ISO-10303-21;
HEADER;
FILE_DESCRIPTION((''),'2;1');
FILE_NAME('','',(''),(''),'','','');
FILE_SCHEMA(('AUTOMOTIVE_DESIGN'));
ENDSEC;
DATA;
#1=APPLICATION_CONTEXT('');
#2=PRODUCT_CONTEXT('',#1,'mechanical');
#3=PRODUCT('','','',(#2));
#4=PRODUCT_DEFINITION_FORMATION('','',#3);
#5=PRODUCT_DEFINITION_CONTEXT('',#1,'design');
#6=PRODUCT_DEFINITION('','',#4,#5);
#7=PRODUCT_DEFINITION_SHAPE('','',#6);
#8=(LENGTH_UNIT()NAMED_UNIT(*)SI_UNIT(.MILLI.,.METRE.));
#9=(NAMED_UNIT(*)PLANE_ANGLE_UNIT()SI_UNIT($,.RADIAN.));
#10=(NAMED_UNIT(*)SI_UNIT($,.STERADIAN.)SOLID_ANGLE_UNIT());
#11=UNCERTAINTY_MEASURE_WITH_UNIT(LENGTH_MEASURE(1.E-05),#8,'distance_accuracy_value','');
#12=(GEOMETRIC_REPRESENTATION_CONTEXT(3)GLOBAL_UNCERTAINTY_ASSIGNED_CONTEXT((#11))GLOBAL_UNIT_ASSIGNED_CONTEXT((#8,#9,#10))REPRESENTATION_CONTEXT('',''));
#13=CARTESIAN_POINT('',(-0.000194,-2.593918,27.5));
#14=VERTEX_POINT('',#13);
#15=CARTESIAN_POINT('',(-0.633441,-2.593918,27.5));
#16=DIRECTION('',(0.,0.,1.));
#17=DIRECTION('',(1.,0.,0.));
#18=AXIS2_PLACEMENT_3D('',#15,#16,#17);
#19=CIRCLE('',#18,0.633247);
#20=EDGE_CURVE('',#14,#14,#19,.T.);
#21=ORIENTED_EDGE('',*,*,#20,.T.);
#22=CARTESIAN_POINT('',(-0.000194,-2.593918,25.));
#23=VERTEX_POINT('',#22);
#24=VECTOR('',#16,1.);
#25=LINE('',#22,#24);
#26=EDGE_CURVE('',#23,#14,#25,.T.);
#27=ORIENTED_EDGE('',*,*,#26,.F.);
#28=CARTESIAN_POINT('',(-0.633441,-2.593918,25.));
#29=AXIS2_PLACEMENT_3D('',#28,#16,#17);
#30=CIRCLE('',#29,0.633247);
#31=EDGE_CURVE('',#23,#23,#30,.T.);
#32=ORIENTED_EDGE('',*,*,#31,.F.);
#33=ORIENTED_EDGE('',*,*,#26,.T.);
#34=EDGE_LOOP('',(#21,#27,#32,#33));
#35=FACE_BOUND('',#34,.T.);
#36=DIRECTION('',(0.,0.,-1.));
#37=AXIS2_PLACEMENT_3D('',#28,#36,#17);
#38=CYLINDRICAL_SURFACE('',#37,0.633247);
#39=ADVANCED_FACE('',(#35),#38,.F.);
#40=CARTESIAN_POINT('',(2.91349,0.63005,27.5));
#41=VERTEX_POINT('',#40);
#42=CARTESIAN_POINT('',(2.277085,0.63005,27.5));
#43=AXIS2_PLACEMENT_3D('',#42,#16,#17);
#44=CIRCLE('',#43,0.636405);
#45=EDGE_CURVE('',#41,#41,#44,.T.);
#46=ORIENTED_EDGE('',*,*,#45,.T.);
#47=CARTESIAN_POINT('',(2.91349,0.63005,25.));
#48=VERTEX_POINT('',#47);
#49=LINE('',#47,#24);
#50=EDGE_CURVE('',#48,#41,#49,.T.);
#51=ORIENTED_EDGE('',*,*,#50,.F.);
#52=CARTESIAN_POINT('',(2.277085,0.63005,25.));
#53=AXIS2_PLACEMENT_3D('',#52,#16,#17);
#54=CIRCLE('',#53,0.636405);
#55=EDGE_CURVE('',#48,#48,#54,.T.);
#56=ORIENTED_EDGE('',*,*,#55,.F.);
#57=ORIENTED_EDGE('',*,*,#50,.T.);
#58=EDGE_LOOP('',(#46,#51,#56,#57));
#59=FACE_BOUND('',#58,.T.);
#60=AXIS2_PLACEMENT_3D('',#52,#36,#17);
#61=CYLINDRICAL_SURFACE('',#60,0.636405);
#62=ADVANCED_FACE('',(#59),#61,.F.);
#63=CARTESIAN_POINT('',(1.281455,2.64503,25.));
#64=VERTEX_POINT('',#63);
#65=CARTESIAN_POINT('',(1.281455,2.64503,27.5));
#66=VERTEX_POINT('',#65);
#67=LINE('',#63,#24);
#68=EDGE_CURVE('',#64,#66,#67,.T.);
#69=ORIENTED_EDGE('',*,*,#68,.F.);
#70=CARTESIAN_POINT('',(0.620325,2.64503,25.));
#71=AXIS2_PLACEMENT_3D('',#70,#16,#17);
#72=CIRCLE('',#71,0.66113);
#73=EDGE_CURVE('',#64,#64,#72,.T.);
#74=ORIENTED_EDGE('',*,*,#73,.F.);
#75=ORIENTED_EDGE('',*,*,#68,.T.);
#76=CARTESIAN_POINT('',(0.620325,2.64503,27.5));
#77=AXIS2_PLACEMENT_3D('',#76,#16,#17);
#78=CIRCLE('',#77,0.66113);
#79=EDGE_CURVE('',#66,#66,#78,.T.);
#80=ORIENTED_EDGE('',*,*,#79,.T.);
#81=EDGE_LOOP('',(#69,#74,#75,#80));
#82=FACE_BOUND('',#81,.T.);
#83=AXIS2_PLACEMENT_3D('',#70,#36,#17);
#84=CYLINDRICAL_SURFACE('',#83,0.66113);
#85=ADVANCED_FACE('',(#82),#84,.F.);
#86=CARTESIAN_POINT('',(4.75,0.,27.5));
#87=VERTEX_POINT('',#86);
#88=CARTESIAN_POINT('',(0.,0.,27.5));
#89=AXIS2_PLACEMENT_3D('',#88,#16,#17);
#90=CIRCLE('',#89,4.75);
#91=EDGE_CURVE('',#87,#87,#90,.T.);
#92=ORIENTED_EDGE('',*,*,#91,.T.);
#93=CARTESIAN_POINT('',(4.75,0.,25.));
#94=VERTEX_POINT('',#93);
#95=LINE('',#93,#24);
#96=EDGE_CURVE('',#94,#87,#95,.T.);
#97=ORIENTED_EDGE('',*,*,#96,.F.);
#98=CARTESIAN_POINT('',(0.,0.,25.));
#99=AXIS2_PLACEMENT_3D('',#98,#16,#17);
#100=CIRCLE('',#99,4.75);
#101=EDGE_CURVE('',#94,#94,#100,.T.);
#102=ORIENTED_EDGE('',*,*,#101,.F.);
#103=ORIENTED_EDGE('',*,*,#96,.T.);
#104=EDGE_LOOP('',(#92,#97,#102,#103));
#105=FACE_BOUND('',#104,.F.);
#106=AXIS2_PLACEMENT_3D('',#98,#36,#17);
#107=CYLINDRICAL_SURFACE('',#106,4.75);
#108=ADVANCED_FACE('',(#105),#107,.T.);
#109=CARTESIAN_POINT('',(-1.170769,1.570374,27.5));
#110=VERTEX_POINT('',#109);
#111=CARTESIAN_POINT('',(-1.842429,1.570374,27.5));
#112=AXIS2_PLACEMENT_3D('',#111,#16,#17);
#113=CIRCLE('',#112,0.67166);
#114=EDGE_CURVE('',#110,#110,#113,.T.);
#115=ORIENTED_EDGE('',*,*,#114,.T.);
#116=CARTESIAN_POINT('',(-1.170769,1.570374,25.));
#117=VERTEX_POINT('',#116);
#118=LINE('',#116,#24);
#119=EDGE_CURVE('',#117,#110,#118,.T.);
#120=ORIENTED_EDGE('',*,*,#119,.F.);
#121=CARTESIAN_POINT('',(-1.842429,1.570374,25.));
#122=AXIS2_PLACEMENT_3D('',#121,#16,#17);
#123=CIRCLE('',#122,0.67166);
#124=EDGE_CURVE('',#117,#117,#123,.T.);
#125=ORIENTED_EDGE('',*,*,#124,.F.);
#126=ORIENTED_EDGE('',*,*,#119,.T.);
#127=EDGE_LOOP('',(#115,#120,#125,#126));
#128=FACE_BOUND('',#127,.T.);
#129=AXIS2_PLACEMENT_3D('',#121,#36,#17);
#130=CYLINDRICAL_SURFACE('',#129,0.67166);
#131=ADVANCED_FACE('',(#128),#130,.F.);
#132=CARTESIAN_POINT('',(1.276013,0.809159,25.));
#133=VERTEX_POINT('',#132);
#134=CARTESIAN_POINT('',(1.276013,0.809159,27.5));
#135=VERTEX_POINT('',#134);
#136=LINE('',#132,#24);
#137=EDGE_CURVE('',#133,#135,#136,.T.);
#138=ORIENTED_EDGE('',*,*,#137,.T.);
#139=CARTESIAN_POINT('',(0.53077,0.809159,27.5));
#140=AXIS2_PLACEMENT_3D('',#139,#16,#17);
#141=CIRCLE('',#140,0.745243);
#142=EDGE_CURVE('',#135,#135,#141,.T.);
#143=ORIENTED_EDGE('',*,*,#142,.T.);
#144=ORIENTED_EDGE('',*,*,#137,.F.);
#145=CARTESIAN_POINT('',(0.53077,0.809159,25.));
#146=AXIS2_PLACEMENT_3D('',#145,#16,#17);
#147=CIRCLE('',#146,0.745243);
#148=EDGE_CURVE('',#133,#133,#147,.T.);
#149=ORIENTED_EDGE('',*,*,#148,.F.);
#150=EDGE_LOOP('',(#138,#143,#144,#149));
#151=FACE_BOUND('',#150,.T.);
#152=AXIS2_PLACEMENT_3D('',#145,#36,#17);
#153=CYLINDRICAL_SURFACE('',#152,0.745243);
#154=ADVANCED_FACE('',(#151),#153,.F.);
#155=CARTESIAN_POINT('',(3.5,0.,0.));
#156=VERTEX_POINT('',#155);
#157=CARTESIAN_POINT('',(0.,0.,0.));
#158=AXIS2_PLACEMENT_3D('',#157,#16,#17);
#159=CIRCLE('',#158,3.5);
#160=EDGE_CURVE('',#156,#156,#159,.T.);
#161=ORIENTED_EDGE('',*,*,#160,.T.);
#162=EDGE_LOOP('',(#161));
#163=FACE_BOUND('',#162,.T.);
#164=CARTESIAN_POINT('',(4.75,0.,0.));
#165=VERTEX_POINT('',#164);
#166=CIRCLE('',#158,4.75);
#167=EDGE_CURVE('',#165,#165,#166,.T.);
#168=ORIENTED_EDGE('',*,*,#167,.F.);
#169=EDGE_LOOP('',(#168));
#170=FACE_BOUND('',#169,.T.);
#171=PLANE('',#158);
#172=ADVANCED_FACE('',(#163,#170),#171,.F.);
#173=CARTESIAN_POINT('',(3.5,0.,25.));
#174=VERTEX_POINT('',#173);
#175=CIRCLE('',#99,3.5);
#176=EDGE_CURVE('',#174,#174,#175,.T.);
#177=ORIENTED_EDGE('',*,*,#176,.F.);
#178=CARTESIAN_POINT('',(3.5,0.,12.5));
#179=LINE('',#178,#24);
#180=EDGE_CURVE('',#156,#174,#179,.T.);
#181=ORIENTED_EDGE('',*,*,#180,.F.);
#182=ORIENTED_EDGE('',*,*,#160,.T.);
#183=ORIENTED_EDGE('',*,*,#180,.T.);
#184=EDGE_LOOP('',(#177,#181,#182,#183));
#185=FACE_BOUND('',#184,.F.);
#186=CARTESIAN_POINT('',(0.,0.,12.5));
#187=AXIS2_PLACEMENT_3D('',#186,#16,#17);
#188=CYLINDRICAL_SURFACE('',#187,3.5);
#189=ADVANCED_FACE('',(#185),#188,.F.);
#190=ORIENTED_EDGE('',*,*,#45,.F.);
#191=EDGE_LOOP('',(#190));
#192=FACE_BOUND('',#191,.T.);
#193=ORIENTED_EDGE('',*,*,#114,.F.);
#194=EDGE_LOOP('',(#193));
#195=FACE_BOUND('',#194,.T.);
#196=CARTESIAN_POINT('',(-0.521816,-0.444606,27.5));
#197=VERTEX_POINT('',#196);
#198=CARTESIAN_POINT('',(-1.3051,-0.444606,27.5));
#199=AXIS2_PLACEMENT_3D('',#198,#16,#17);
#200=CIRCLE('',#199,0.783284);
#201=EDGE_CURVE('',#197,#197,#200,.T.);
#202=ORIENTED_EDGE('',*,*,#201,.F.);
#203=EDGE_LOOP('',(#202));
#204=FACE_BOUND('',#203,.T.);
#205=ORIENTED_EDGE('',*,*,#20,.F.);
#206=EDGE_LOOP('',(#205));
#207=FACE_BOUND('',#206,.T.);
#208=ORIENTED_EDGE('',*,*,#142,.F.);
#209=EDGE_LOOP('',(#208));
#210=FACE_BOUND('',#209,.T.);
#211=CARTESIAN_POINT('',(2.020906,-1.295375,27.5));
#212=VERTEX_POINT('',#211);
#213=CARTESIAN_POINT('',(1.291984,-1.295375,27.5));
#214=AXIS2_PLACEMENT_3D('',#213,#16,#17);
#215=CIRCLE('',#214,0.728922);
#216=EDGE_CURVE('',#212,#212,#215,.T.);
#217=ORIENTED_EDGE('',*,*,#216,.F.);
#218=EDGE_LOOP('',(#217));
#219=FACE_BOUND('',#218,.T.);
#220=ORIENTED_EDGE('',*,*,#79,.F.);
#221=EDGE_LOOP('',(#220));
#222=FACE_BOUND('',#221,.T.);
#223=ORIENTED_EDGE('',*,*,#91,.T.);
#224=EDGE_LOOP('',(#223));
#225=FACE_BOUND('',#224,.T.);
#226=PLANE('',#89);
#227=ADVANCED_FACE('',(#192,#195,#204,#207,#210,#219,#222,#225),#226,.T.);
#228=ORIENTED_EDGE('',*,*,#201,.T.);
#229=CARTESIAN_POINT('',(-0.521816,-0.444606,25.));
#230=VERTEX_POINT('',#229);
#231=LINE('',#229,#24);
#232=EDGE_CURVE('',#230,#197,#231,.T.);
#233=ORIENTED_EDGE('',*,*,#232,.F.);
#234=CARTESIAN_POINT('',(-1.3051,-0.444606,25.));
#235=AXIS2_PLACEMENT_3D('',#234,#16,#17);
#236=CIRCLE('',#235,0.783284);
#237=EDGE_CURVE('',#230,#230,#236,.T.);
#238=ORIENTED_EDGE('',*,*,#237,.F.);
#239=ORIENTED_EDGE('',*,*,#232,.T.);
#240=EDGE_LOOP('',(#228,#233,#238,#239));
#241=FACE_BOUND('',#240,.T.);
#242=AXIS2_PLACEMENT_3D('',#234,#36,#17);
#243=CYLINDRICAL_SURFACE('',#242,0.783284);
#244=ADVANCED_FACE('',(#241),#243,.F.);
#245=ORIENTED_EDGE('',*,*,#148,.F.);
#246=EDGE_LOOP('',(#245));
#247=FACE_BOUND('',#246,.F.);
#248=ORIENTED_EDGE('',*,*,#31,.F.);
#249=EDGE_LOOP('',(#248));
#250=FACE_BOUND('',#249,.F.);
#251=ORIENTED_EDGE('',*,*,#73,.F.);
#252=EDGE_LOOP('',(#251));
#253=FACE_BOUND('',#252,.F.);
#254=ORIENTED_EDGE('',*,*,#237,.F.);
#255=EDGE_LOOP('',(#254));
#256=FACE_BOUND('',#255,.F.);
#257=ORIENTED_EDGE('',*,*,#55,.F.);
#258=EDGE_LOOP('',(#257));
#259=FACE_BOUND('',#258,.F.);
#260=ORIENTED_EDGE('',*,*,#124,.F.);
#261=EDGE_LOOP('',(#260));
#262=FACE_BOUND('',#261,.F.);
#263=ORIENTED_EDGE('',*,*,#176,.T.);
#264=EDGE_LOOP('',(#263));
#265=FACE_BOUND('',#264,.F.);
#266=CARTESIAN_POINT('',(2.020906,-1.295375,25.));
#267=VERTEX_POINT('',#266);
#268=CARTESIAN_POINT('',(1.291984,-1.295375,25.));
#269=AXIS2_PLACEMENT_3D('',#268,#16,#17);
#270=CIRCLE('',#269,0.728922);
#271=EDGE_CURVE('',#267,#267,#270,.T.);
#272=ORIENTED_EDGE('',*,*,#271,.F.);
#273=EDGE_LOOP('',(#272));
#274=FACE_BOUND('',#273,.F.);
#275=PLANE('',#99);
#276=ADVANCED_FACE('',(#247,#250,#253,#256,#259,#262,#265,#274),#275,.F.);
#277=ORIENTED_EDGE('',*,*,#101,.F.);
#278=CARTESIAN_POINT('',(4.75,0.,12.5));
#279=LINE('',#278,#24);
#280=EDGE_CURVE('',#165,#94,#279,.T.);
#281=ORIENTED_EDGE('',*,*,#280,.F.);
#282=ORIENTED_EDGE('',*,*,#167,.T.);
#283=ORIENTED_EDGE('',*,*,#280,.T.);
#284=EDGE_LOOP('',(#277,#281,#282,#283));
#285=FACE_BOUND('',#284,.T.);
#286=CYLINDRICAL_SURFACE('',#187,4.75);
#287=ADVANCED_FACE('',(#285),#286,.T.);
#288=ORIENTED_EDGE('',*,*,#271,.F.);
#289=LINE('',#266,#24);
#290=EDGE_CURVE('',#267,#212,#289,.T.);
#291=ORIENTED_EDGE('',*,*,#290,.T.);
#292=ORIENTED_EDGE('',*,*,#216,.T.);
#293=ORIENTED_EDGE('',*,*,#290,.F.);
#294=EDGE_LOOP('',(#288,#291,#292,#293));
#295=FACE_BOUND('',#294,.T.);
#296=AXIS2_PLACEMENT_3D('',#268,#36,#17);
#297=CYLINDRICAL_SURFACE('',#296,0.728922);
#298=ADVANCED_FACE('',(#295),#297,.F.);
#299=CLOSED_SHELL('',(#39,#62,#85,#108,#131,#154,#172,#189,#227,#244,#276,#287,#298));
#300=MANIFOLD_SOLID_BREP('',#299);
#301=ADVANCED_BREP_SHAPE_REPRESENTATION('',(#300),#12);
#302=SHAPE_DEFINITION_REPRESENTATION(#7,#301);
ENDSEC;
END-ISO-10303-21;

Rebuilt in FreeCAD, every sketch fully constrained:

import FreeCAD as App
import Part
import Sketcher

doc = App.newDocument("Part")
body = doc.addObject("PartDesign::Body", "Body")

sketch1 = body.newObject("Sketcher::SketchObject", "Sketch")
sketch1.AttachmentSupport = (doc.getObject("XZ_Plane"), [""])
sketch1.MapMode = "FlatFace"
sketch1.addGeometry([
    Part.LineSegment(App.Vector(3.5, 25, 0), App.Vector(3.5, 0, 0)),
    Part.LineSegment(App.Vector(3.5, 0, 0), App.Vector(4.75, 0, 0)),
    Part.LineSegment(App.Vector(4.75, 0, 0), App.Vector(4.75, 25, 0)),
    Part.LineSegment(App.Vector(4.75, 25, 0), App.Vector(3.5, 25, 0)),
], False)
sketch1.addConstraint([
    Sketcher.Constraint("Coincident", 0, 2, 1, 1),
    Sketcher.Constraint("Coincident", 1, 2, 2, 1),
    Sketcher.Constraint("Coincident", 2, 2, 3, 1),
    Sketcher.Constraint("Coincident", 3, 2, 0, 1),
    Sketcher.Constraint("Vertical", 0),
    Sketcher.Constraint("Horizontal", 1),
    Sketcher.Constraint("Vertical", 2),
    Sketcher.Constraint("Horizontal", 3),
    Sketcher.Constraint("PointOnObject", 0, 2, -1),
    Sketcher.Constraint("DistanceY", 0, 2, 0, 1, 25.0),
    Sketcher.Constraint("DistanceX", 1, 1, 1, 2, 1.25),
    Sketcher.Constraint("DistanceX", -1, 1, 0, 2, 3.5),
])
revolution = body.newObject("PartDesign::Revolution", "Revolution")
revolution.Profile = sketch1
revolution.ReferenceAxis = (sketch1, ["V_Axis"])
revolution.Angle = 360

sketch2 = body.newObject("Sketcher::SketchObject", "Sketch001")
sketch2.AttachmentSupport = (doc.getObject("XY_Plane"), [""])
sketch2.MapMode = "FlatFace"
sketch2.AttachmentOffset = App.Placement(App.Vector(0, 0, 25), App.Rotation())
sketch2.addGeometry([
    Part.Circle(App.Vector(0, 0, 0), App.Vector(0, 0, 1), 4.75),
    Part.Circle(App.Vector(-0.633441, -2.593918, 0), App.Vector(0, 0, 1), 0.633247),
    Part.Circle(App.Vector(-1.3051, -0.444606, 0), App.Vector(0, 0, 1), 0.783284),
    Part.Circle(App.Vector(1.291984, -1.295375, 0), App.Vector(0, 0, 1), 0.728922),
    Part.Circle(App.Vector(-1.842429, 1.570374, 0), App.Vector(0, 0, 1), 0.67166),
    Part.Circle(App.Vector(0.53077, 0.809159, 0), App.Vector(0, 0, 1), 0.745243),
    Part.Circle(App.Vector(2.277085, 0.63005, 0), App.Vector(0, 0, 1), 0.636405),
    Part.Circle(App.Vector(0.620325, 2.64503, 0), App.Vector(0, 0, 1), 0.66113),
], False)
sketch2.addConstraint([
    Sketcher.Constraint("Coincident", 0, 3, -1, 1),
    Sketcher.Constraint("Diameter", 0, 9.5),
    Sketcher.Constraint("Diameter", 4, 1.34332),
    Sketcher.Constraint("Diameter", 6, 1.27281),
    Sketcher.Constraint("Diameter", 7, 1.32226),
    Sketcher.Constraint("Diameter", 1, 1.266494),
    Sketcher.Constraint("Diameter", 2, 1.566568),
    Sketcher.Constraint("Diameter", 3, 1.457844),
    Sketcher.Constraint("Diameter", 5, 1.490486),
    Sketcher.Constraint("DistanceX", 2, 3, -1, 1, 1.3051),
    Sketcher.Constraint("DistanceX", 4, 3, 5, 3, 2.373199),
    Sketcher.Constraint("DistanceX", 3, 3, 6, 3, 0.985101),
    Sketcher.Constraint("DistanceX", 1, 3, -1, 1, 0.633441),
    Sketcher.Constraint("DistanceY", 1, 3, -1, 1, 2.593918),
    Sketcher.Constraint("DistanceX", 4, 3, -1, 1, 1.842429),
    Sketcher.Constraint("DistanceY", -1, 1, 5, 3, 0.809159),
    Sketcher.Constraint("DistanceY", -1, 1, 6, 3, 0.63005),
    Sketcher.Constraint("DistanceY", -1, 1, 7, 3, 2.64503),
    Sketcher.Constraint("DistanceY", 3, 3, 2, 3, 0.850769),
    Sketcher.Constraint("DistanceY", 2, 3, 4, 3, 2.01498),
    Sketcher.Constraint("DistanceY", 1, 3, 4, 3, 4.164292),
    Sketcher.Constraint("DistanceX", 7, 3, 6, 3, 1.65676),
    Sketcher.Constraint("DistanceX", -1, 1, 3, 3, 1.291984),
])
pad1 = body.newObject("PartDesign::Pad", "Pad")
pad1.Profile = sketch2
pad1.Length = 2.5

doc.recompute()
